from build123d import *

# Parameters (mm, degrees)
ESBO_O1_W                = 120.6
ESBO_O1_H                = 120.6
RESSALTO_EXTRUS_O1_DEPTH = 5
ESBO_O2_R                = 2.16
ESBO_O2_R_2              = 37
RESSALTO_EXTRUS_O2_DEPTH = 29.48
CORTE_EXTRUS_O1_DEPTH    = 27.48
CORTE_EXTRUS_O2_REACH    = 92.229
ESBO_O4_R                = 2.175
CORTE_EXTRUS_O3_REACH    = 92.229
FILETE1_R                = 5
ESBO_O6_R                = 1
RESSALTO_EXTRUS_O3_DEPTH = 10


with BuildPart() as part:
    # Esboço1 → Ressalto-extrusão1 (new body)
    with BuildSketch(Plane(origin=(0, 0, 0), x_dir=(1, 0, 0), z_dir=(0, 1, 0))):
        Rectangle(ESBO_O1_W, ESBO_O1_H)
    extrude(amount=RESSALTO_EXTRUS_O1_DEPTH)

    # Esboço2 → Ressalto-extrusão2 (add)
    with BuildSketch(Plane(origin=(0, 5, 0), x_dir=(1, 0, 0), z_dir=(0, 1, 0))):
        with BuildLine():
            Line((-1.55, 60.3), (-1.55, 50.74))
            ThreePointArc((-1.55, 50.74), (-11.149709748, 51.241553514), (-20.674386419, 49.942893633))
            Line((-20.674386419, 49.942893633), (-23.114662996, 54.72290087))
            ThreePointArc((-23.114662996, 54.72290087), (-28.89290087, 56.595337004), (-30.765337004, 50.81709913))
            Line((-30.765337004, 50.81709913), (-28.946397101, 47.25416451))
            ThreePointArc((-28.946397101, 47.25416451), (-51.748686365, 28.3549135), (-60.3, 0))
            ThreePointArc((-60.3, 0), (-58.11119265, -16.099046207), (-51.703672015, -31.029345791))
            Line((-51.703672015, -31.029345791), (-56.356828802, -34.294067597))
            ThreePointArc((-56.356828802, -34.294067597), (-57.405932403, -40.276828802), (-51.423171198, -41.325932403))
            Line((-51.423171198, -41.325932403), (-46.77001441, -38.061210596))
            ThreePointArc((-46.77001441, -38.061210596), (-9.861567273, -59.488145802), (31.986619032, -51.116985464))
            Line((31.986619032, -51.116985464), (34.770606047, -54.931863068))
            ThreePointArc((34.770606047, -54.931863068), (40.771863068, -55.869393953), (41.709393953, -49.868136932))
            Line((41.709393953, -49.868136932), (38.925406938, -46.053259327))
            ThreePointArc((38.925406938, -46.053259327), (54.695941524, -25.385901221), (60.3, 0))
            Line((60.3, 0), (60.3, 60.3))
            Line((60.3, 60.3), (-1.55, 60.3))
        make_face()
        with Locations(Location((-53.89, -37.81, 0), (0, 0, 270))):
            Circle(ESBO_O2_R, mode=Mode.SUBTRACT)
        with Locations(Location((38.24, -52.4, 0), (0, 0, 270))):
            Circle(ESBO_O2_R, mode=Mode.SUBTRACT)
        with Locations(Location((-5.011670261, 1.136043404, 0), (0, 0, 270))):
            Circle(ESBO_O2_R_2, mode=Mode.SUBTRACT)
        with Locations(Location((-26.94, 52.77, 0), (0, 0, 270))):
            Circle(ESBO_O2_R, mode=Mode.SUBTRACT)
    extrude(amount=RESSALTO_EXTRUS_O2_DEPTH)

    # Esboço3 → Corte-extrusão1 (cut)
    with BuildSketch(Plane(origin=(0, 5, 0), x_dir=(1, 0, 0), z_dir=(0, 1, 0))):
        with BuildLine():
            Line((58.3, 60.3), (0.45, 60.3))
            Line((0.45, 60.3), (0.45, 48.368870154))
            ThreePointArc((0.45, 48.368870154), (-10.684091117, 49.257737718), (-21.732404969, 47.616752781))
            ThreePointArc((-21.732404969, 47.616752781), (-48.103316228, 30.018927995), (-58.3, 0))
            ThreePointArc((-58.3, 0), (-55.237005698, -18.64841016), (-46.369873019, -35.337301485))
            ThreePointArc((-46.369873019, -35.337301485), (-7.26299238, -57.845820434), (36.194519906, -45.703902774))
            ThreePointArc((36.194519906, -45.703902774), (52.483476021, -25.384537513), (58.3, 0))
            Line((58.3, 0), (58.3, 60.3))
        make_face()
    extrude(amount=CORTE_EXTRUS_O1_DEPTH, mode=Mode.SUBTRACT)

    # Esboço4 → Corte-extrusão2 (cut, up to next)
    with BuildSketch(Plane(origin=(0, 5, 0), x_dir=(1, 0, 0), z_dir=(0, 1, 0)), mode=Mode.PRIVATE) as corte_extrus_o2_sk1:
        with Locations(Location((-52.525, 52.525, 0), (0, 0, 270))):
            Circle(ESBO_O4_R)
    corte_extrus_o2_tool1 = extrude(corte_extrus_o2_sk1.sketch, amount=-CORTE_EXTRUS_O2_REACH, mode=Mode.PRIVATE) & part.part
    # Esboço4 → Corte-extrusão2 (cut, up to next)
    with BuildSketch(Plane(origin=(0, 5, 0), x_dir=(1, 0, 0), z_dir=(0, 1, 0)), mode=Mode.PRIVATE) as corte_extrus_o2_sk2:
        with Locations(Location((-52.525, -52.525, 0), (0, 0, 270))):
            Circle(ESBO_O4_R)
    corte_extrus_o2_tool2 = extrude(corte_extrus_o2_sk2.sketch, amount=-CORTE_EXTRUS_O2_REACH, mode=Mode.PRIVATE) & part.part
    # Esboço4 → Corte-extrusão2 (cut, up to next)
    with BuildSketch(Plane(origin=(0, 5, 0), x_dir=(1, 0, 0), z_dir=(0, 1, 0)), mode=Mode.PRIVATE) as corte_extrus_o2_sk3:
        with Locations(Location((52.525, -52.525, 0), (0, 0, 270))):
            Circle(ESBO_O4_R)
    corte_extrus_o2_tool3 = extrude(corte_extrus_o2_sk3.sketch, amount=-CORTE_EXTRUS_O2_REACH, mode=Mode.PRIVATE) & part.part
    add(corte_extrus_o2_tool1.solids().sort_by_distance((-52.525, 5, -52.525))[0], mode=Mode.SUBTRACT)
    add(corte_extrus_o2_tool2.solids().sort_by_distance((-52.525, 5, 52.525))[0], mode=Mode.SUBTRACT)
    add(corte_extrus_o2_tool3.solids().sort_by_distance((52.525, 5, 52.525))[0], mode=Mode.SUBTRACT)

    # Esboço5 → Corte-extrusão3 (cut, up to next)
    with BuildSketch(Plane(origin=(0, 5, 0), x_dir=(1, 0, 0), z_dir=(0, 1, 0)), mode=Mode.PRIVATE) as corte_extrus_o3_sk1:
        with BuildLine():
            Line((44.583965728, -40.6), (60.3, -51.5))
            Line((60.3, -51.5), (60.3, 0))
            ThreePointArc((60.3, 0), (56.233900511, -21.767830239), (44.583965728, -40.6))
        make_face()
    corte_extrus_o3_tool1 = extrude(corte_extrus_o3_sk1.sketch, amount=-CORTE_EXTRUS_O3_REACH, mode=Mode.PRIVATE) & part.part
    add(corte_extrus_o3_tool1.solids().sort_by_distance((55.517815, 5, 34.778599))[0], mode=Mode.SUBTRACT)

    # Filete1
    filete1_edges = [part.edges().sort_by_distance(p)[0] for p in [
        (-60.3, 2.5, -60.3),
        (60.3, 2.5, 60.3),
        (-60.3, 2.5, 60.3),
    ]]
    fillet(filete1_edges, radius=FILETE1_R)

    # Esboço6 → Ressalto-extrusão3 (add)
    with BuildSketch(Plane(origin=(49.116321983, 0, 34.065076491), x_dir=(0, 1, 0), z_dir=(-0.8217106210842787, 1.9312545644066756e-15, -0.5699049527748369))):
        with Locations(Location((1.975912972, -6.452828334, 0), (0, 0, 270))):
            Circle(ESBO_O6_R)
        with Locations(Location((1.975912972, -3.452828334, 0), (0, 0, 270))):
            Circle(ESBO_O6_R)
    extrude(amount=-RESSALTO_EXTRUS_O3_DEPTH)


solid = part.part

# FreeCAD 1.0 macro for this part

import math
import FreeCAD as App
import Part
import Sketcher
from FreeCAD import Vector
Q = App.Units.Quantity


def edges_at(feature, points):
    """Names of the edges that pass closest to the given points."""
    edges = feature.Shape.Edges
    near = lambda p: min(range(len(edges)), key=lambda i: edges[i].distToShape(Part.Vertex(*p))[0])
    return sorted({f"Edge{near(p) + 1}" for p in points})


def add_polygon(sketch, points):
    """Adds a closed chain of lines whose ends are joined by coincident constraints."""
    first, n = sketch.GeometryCount, len(points)
    for a, b in zip(points, points[1:] + points[:1]):
        sketch.addGeometry(Part.LineSegment(App.Vector(*a, 0), App.Vector(*b, 0)), False)
    for i in range(n):
        sketch.addConstraint(Sketcher.Constraint("Coincident", first + i, 2, first + (i + 1) % n, 1))

doc = App.newDocument("Part")
body = doc.addObject("PartDesign::Body", "Body")

sketch1 = doc.addObject("Sketcher::SketchObject", "Sketch")
body.addObject(sketch1)
sketch1.AttachmentSupport = (doc.XZ_Plane, [""])
sketch1.MapMode = "FlatFace"
add_polygon(sketch1, [(-60, -60), (-60, 60), (60, 60), (60, -60)])
sketch1.addConstraint(Sketcher.Constraint("Vertical", 0))
sketch1.addConstraint(Sketcher.Constraint("Horizontal", 1))
sketch1.addConstraint(Sketcher.Constraint("Vertical", 2))
sketch1.addConstraint(Sketcher.Constraint("Horizontal", 3))
sketch1.addConstraint(Sketcher.Constraint("Symmetric", 0, 2, 2, 2, -1, 1))
sketch1.addConstraint(Sketcher.Constraint("Equal", 3, 0))
sketch1.addConstraint(Sketcher.Constraint("DistanceX", 1, 1, 1, 2, Q("120.6 mm")))
pad1 = doc.addObject("PartDesign::Pad", "Pad")
body.addObject(pad1)
pad1.Profile = sketch1
pad1.Length = 5
pad1.Reversed = True

sketch2 = doc.addObject("Sketcher::SketchObject", "Sketch001")
body.addObject(sketch2)
sketch2.AttachmentSupport = (doc.XZ_Plane, [""])
sketch2.MapMode = "FlatFace"
sketch2.AttachmentOffset = App.Placement(Vector(0, 0, -5), App.Rotation())
sketch2.addGeometry(Part.LineSegment(Vector(-1.6, -60.3, 0), Vector(-1.6, -50.7, 0)), False)
sketch2.addGeometry(Part.ArcOfCircle(Part.Circle(Vector(-9, 0, 0), Vector(0, 0, 1), 51.3), math.radians(-103), math.radians(-82)), False)
sketch2.addGeometry(Part.LineSegment(Vector(-20.7, -49.9, 0), Vector(-23.1, -54.7, 0)), False)
sketch2.addGeometry(Part.ArcOfCircle(Part.Circle(Vector(-26.9, -52.8, 0), Vector(0, 0, 1), 4.3), math.radians(153), math.radians(333)), False)
sketch2.addGeometry(Part.LineSegment(Vector(-30.8, -50.8, 0), Vector(-28.9, -47.3, 0)), False)
sketch2.addGeometry(Part.ArcOfCircle(Part.Circle(Vector(-9, 0, 0), Vector(0, 0, 1), 51.3), math.radians(180), math.radians(247)), False)
sketch2.addGeometry(Part.ArcOfCircle(Part.Circle(Vector(0, 0, 0), Vector(0, 0, 1), 60.3), math.radians(149), math.radians(180)), False)
sketch2.addGeometry(Part.LineSegment(Vector(-51.7, 31, 0), Vector(-56.4, 34.3, 0)), False)
sketch2.addGeometry(Part.ArcOfCircle(Part.Circle(Vector(-53.9, 37.8, 0), Vector(0, 0, 1), 4.3), math.radians(55), math.radians(235)), False)
sketch2.addGeometry(Part.LineSegment(Vector(-51.4, 41.3, 0), Vector(-46.8, 38.1, 0)), False)
sketch2.addGeometry(Part.ArcOfCircle(Part.Circle(Vector(0, 0, 0), Vector(0, 0, 1), 60.3), math.radians(58), math.radians(141)), False)
sketch2.addGeometry(Part.LineSegment(Vector(32, 51.1, 0), Vector(34.8, 54.9, 0)), False)
sketch2.addGeometry(Part.ArcOfCircle(Part.Circle(Vector(38.2, 52.4, 0), Vector(0, 0, 1), 4.3), math.radians(-36), math.radians(144)), False)
sketch2.addGeometry(Part.LineSegment(Vector(41.7, 49.9, 0), Vector(38.9, 46.1, 0)), False)
sketch2.addGeometry(Part.ArcOfCircle(Part.Circle(Vector(0, 0, 0), Vector(0, 0, 1), 60.3), math.radians(0), math.radians(50)), False)
sketch2.addGeometry(Part.LineSegment(Vector(60.3, 0, 0), Vector(60.3, -60.3, 0)), False)
sketch2.addGeometry(Part.LineSegment(Vector(60.3, -60.3, 0), Vector(-1.6, -60.3, 0)), False)
sketch2.addGeometry(Part.Circle(Vector(-53.9, 37.8, 0), Vector(0, 0, 1), 2.2), False)
sketch2.addGeometry(Part.Circle(Vector(38.2, 52.4, 0), Vector(0, 0, 1), 2.2), False)
sketch2.addGeometry(Part.Circle(Vector(-26.9, -52.8, 0), Vector(0, 0, 1), 2.2), False)
sketch2.addGeometry(Part.Circle(Vector(-5, -1.1, 0), Vector(0, 0, 1), 37), False)
sketch2.addConstraint(Sketcher.Constraint("Coincident", 0, 2, 1, 2))
sketch2.addConstraint(Sketcher.Constraint("Coincident", 1, 1, 2, 1))
sketch2.addConstraint(Sketcher.Constraint("Tangent", 2, 2, 3, 2))
sketch2.addConstraint(Sketcher.Constraint("Tangent", 3, 1, 4, 1))
sketch2.addConstraint(Sketcher.Constraint("Coincident", 4, 2, 5, 2))
sketch2.addConstraint(Sketcher.Constraint("Tangent", 5, 1, 6, 2))
sketch2.addConstraint(Sketcher.Constraint("Coincident", 6, 1, 7, 1))
sketch2.addConstraint(Sketcher.Constraint("Tangent", 7, 2, 8, 2))
sketch2.addConstraint(Sketcher.Constraint("Tangent", 8, 1, 9, 1))
sketch2.addConstraint(Sketcher.Constraint("Coincident", 9, 2, 10, 2))
sketch2.addConstraint(Sketcher.Constraint("Coincident", 10, 1, 11, 1))
sketch2.addConstraint(Sketcher.Constraint("Tangent", 11, 2, 12, 2))
sketch2.addConstraint(Sketcher.Constraint("Tangent", 12, 1, 13, 1))
sketch2.addConstraint(Sketcher.Constraint("Coincident", 13, 2, 14, 2))
sketch2.addConstraint(Sketcher.Constraint("Tangent", 14, 1, 15, 1))
sketch2.addConstraint(Sketcher.Constraint("Coincident", 15, 2, 16, 1))
sketch2.addConstraint(Sketcher.Constraint("Coincident", 16, 2, 0, 1))
sketch2.addConstraint(Sketcher.Constraint("Vertical", 0))
sketch2.addConstraint(Sketcher.Constraint("Vertical", 15))
sketch2.addConstraint(Sketcher.Constraint("Horizontal", 16))
sketch2.addConstraint(Sketcher.Constraint("Coincident", 6, 3, -1, 1))
sketch2.addConstraint(Sketcher.Constraint("Coincident", 10, 3, -1, 1))
sketch2.addConstraint(Sketcher.Constraint("Coincident", 14, 3, -1, 1))
sketch2.addConstraint(Sketcher.Constraint("Coincident", 5, 3, 1, 3))
sketch2.addConstraint(Sketcher.Constraint("Coincident", 17, 3, 8, 3))
sketch2.addConstraint(Sketcher.Constraint("Coincident", 18, 3, 12, 3))
sketch2.addConstraint(Sketcher.Constraint("Coincident", 19, 3, 3, 3))
sketch2.addConstraint(Sketcher.Constraint("Equal", 1, 5))
sketch2.addConstraint(Sketcher.Constraint("Equal", 3, 8))
sketch2.addConstraint(Sketcher.Constraint("Equal", 6, 10))
sketch2.addConstraint(Sketcher.Constraint("Equal", 8, 12))
sketch2.addConstraint(Sketcher.Constraint("Equal", 10, 14))
sketch2.addConstraint(Sketcher.Constraint("Equal", 17, 18))
sketch2.addConstraint(Sketcher.Constraint("Equal", 18, 19))
sketch2.addConstraint(Sketcher.Constraint("PointOnObject", 1, 3, -1))
sketch2.addConstraint(Sketcher.Constraint("Parallel", 2, 4))
sketch2.addConstraint(Sketcher.Constraint("Parallel", 7, 9))
sketch2.addConstraint(Sketcher.Constraint("Parallel", 11, 13))
sketch2.addConstraint(Sketcher.Constraint("Equal", 7, 9))
sketch2.addConstraint(Sketcher.Constraint("Equal", 11, 13))
sketch2.addConstraint(Sketcher.Constraint("Diameter", 20, Q("74 mm")))
sketch2.addConstraint(Sketcher.Constraint("Radius", 6, Q("60.3 mm")))
sketch2.addConstraint(Sketcher.Constraint("Diameter", 17, Q("4.32 mm")))
sketch2.addConstraint(Sketcher.Constraint("DistanceY", 15, 2, 15, 1, Q("60.3 mm")))
sketch2.addConstraint(Sketcher.Constraint("Radius", 3, Q("4.295 mm")))
sketch2.addConstraint(Sketcher.Constraint("DistanceX", 16, 2, 16, 1, Q("61.85 mm")))
sketch2.addConstraint(Sketcher.Constraint("DistanceY", 0, 1, 0, 2, Q("9.56 mm")))
sketch2.addConstraint(Sketcher.Constraint("DistanceY", -1, 1, 12, 3, Q("52.4 mm")))
sketch2.addConstraint(Sketcher.Constraint("DistanceX", 3, 3, -1, 1, Q("26.94 mm")))
sketch2.addConstraint(Sketcher.Constraint("DistanceY", 3, 3, -1, 1, Q("52.77 mm")))
sketch2.addConstraint(Sketcher.Constraint("DistanceX", 8, 3, -1, 1, Q("53.89 mm")))
sketch2.addConstraint(Sketcher.Constraint("DistanceY", -1, 1, 8, 3, Q("37.81 mm")))
sketch2.addConstraint(Sketcher.Constraint("DistanceX", -1, 1, 12, 3, Q("38.24 mm")))
sketch2.addConstraint(Sketcher.Constraint("DistanceY", 2, 2, -1, 1, Q("54.722901 mm")))
sketch2.addConstraint(Sketcher.Constraint("DistanceX", 20, 3, -1, 1, Q("5.01167 mm")))
sketch2.addConstraint(Sketcher.Constraint("DistanceY", 1, 1, 20, 3, Q("48.80685 mm")))
pad2 = doc.addObject("PartDesign::Pad", "Pad001")
body.addObject(pad2)
pad2.Profile = sketch2
pad2.Length = 29.48
pad2.Reversed = True

sketch3 = doc.addObject("Sketcher::SketchObject", "Sketch002")
body.addObject(sketch3)
sketch3.AttachmentSupport = (doc.XZ_Plane, [""])
sketch3.MapMode = "FlatFace"
sketch3.AttachmentOffset = App.Placement(Vector(0, 0, -5), App.Rotation())
sketch3.addGeometry(Part.LineSegment(Vector(58, -60, 0), Vector(0, -60, 0)), False)
sketch3.addGeometry(Part.LineSegment(Vector(0, -60, 0), Vector(0, -48, 0)), False)
sketch3.addGeometry(Part.ArcOfCircle(Part.Circle(Vector(-9, 0, 0), Vector(0, 0, 1), 49), math.radians(-105), math.radians(-79)), False)
sketch3.addGeometry(Part.ArcOfCircle(Part.Circle(Vector(-9, 0, 0), Vector(0, 0, 1), 49), math.radians(180), math.radians(255)), False)
sketch3.addGeometry(Part.ArcOfCircle(Part.Circle(Vector(0, 0, 0), Vector(0, 0, 1), 58), math.radians(143), math.radians(180)), False)
sketch3.addGeometry(Part.ArcOfCircle(Part.Circle(Vector(0, 0, 0), Vector(0, 0, 1), 58), math.radians(52), math.radians(143)), False)
sketch3.addGeometry(Part.ArcOfCircle(Part.Circle(Vector(0, 0, 0), Vector(0, 0, 1), 58), math.radians(0), math.radians(52)), False)
sketch3.addGeometry(Part.LineSegment(Vector(58, 0, 0), Vector(58, -60, 0)), False)
sketch3.addConstraint(Sketcher.Constraint("Coincident", 0, 2, 1, 1))
sketch3.addConstraint(Sketcher.Constraint("Coincident", 1, 2, 2, 2))
sketch3.addConstraint(Sketcher.Constraint("Tangent", 2, 1, 3, 2))
sketch3.addConstraint(Sketcher.Constraint("Tangent", 3, 1, 4, 2))
sketch3.addConstraint(Sketcher.Constraint("Tangent", 4, 1, 5, 2))
sketch3.addConstraint(Sketcher.Constraint("Tangent", 5, 1, 6, 2))
sketch3.addConstraint(Sketcher.Constraint("Tangent", 6, 1, 7, 1))
sketch3.addConstraint(Sketcher.Constraint("Coincident", 7, 2, 0, 1))
sketch3.addConstraint(Sketcher.Constraint("Horizontal", 0))
sketch3.addConstraint(Sketcher.Constraint("Vertical", 1))
sketch3.addConstraint(Sketcher.Constraint("Vertical", 7))
sketch3.addConstraint(Sketcher.Constraint("Coincident", 4, 3, -1, 1))
sketch3.addConstraint(Sketcher.Constraint("Coincident", 6, 3, -1, 1))
sketch3.addConstraint(Sketcher.Constraint("Equal", 2, 3))
sketch3.addConstraint(Sketcher.Constraint("PointOnObject", 2, 3, -1))
sketch3.addConstraint(Sketcher.Constraint("Radius", 4, Q("58.3 mm")))
sketch3.addConstraint(Sketcher.Constraint("DistanceY", 7, 2, 7, 1, Q("60.3 mm")))
sketch3.addConstraint(Sketcher.Constraint("DistanceX", 0, 2, 0, 1, Q("57.85 mm")))
sketch3.addConstraint(Sketcher.Constraint("Radius", 2, Q("49.286043 mm")))
sketch3.addConstraint(Sketcher.Constraint("DistanceY", -1, 1, 4, 1, Q("35.337301 mm")))
sketch3.addConstraint(Sketcher.Constraint("DistanceX", -1, 1, 5, 1, Q("36.19452 mm")))
sketch3.addConstraint(Sketcher.Constraint("DistanceX", 2, 1, 3, 3, Q("12.718448 mm")))
pocket1 = doc.addObject("PartDesign::Pocket", "Pocket")
body.addObject(pocket1)
pocket1.Profile = sketch3
pocket1.Length = 27.48

sketch4 = doc.addObject("Sketcher::SketchObject", "Sketch003")
body.addObject(sketch4)
sketch4.AttachmentSupport = (doc.XZ_Plane, [""])
sketch4.MapMode = "FlatFace"
sketch4.AttachmentOffset = App.Placement(Vector(0, 0, -5), App.Rotation())
sketch4.addGeometry(Part.Circle(Vector(-52.5, -52.5, 0), Vector(0, 0, 1), 2.2), False)
sketch4.addConstraint(Sketcher.Constraint("Diameter", 0, Q("4.35 mm")))
sketch4.addConstraint(Sketcher.Constraint("DistanceX", 0, 3, -1, 1, Q("52.525 mm")))
sketch4.addConstraint(Sketcher.Constraint("DistanceY", 0, 3, -1, 1, Q("52.525 mm")))
pocket2 = doc.addObject("PartDesign::Pocket", "Pocket001")
body.addObject(pocket2)
pocket2.Profile = sketch4
pocket2.Type = "UpToFirst"
pocket2.Reversed = True

sketch5 = doc.addObject("Sketcher::SketchObject", "Sketch004")
body.addObject(sketch5)
sketch5.AttachmentSupport = (doc.XZ_Plane, [""])
sketch5.MapMode = "FlatFace"
sketch5.AttachmentOffset = App.Placement(Vector(0, 0, -5), App.Rotation())
sketch5.addGeometry(Part.Circle(Vector(-52.5, 52.5, 0), Vector(0, 0, 1), 2.2), False)
sketch5.addConstraint(Sketcher.Constraint("Diameter", 0, Q("4.35 mm")))
sketch5.addConstraint(Sketcher.Constraint("DistanceX", 0, 3, -1, 1, Q("52.525 mm")))
sketch5.addConstraint(Sketcher.Constraint("DistanceY", -1, 1, 0, 3, Q("52.525 mm")))
pocket3 = doc.addObject("PartDesign::Pocket", "Pocket002")
body.addObject(pocket3)
pocket3.Profile = sketch5
pocket3.Type = "UpToFirst"
pocket3.Reversed = True

sketch6 = doc.addObject("Sketcher::SketchObject", "Sketch005")
body.addObject(sketch6)
sketch6.AttachmentSupport = (doc.XZ_Plane, [""])
sketch6.MapMode = "FlatFace"
sketch6.AttachmentOffset = App.Placement(Vector(0, 0, -5), App.Rotation())
sketch6.addGeometry(Part.Circle(Vector(52.5, 52.5, 0), Vector(0, 0, 1), 2.2), False)
sketch6.addConstraint(Sketcher.Constraint("Diameter", 0, Q("4.35 mm")))
sketch6.addConstraint(Sketcher.Constraint("DistanceX", -1, 1, 0, 3, Q("52.525 mm")))
sketch6.addConstraint(Sketcher.Constraint("DistanceY", -1, 1, 0, 3, Q("52.525 mm")))
pocket4 = doc.addObject("PartDesign::Pocket", "Pocket003")
body.addObject(pocket4)
pocket4.Profile = sketch6
pocket4.Type = "UpToFirst"
pocket4.Reversed = True

sketch7 = doc.addObject("Sketcher::SketchObject", "Sketch006")
body.addObject(sketch7)
sketch7.AttachmentSupport = (doc.XZ_Plane, [""])
sketch7.MapMode = "FlatFace"
sketch7.AttachmentOffset = App.Placement(Vector(0, 0, -5), App.Rotation())
sketch7.addGeometry(Part.LineSegment(Vector(45, 41, 0), Vector(60, 52, 0)), False)
sketch7.addGeometry(Part.LineSegment(Vector(60, 52, 0), Vector(60, 0, 0)), False)
sketch7.addGeometry(Part.ArcOfCircle(Part.Circle(Vector(0, 0, 0), Vector(0, 0, 1), 60), math.radians(0), math.radians(42)), False)
sketch7.addConstraint(Sketcher.Constraint("Coincident", 0, 2, 1, 1))
sketch7.addConstraint(Sketcher.Constraint("Tangent", 1, 2, 2, 1))
sketch7.addConstraint(Sketcher.Constraint("Coincident", 2, 2, 0, 1))
sketch7.addConstraint(Sketcher.Constraint("Vertical", 1))
sketch7.addConstraint(Sketcher.Constraint("Coincident", 2, 3, -1, 1))
sketch7.addConstraint(Sketcher.Constraint("Radius", 2, Q("60.3 mm")))
sketch7.addConstraint(Sketcher.Constraint("DistanceY", 1, 2, 1, 1, Q("51.5 mm")))
sketch7.addConstraint(Sketcher.Constraint("DistanceY", -1, 1, 2, 2, Q("40.6 mm")))
pocket5 = doc.addObject("PartDesign::Pocket", "Pocket004")
body.addObject(pocket5)
pocket5.Profile = sketch7
pocket5.Type = "UpToFirst"
pocket5.Reversed = True
doc.recompute()

fillet = doc.addObject("PartDesign::Fillet", "Fillet")
body.addObject(fillet)
fillet.Base = (pocket5, edges_at(pocket5, [(-60.3, 2.5, -60.3), (60.3, 2.5, 60.3), (-60.3, 2.5, 60.3)]))
fillet.Radius = 5

sketch8 = doc.addObject("Sketcher::SketchObject", "Sketch007")
body.addObject(sketch8)
sketch8.Placement = App.Placement(Vector(49.116322, 0, 34.065076), App.Rotation(Vector(0, 1, 0), Vector(0.569904953, 0, -0.821710621), Vector(-0.821710621, 0, -0.569904953), "ZXY"))
sketch8.addGeometry(Part.Circle(Vector(2, -6.5, 0), Vector(0, 0, 1), 1), False)
sketch8.addGeometry(Part.Circle(Vector(2, -3.5, 0), Vector(0, 0, 1), 1), False)
sketch8.addConstraint(Sketcher.Constraint("Equal", 0, 1))
sketch8.addConstraint(Sketcher.Constraint("Vertical", 0, 3, 1, 3))
sketch8.addConstraint(Sketcher.Constraint("Diameter", 0, Q("2 mm")))
sketch8.addConstraint(Sketcher.Constraint("DistanceY", 0, 3, 1, 3, Q("3 mm")))
sketch8.addConstraint(Sketcher.Constraint("DistanceY", 0, 3, -1, 1, Q("6.452828 mm")))
sketch8.addConstraint(Sketcher.Constraint("DistanceX", -1, 1, 0, 3, Q("1.975913 mm")))
pad3 = doc.addObject("PartDesign::Pad", "Pad002")
body.addObject(pad3)
pad3.Profile = sketch8
pad3.Length = 10
pad3.Reversed = True

doc.recompute()
